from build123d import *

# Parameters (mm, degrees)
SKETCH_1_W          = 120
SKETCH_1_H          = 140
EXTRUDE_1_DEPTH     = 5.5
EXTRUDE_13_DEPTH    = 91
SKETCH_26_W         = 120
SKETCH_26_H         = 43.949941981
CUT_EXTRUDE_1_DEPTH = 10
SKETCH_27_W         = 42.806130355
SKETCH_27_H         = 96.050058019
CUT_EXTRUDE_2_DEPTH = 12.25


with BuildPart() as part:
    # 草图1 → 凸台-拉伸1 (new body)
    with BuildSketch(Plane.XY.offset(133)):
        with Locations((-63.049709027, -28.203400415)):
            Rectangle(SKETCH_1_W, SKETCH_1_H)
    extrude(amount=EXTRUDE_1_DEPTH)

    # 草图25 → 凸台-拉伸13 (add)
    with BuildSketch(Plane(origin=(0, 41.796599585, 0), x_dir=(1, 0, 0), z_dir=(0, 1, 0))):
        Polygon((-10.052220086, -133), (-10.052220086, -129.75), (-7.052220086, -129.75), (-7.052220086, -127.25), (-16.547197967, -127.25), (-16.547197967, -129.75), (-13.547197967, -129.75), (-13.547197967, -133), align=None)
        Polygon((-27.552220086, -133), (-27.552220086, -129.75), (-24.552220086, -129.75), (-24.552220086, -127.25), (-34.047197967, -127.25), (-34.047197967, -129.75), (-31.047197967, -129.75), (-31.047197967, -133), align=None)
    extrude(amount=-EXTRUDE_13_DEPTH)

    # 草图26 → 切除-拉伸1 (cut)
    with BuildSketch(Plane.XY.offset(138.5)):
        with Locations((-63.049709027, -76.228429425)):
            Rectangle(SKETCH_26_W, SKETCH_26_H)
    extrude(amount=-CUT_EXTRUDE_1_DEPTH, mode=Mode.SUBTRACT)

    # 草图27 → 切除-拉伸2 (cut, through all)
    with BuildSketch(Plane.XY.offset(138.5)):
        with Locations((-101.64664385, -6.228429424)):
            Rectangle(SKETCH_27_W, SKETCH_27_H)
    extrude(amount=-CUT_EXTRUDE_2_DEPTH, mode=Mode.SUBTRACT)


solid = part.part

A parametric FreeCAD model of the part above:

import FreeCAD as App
import Part
import Sketcher
from FreeCAD import Vector
Q = App.Units.Quantity


def add_polygon(sketch, points):
    """Adds a closed chain of lines whose ends are joined by coincident constraints."""
    first, n = sketch.GeometryCount, len(points)
    for a, b in zip(points, points[1:] + points[:1]):
        sketch.addGeometry(Part.LineSegment(App.Vector(*a, 0), App.Vector(*b, 0)), False)
    for i in range(n):
        sketch.addConstraint(Sketcher.Constraint("Coincident", first + i, 2, first + (i + 1) % n, 1))

doc = App.newDocument("Part")
body = doc.addObject("PartDesign::Body", "Body")

# Sketch on XY plane
sketch1 = body.newObject("Sketcher::SketchObject", "Sketch")
sketch1.AttachmentSupport = (doc.getObject("XY_Plane"), [""])
sketch1.MapMode = "FlatFace"
sketch1.AttachmentOffset = App.Placement(Vector(0, 0, 133), App.Rotation())
add_polygon(sketch1, [(-123, 42), (-123, -98), (-3, -98), (-3, 42)])  # lines 0-3
sketch1.addConstraint([
    Sketcher.Constraint("Vertical", 0),
    Sketcher.Constraint("Horizontal", 1),
    Sketcher.Constraint("Vertical", 2),
    Sketcher.Constraint("Horizontal", 3),
    Sketcher.Constraint("DistanceX", 1, 1, 1, 2, Q("120 mm")),
    Sketcher.Constraint("DistanceY", 0, 2, 0, 1, Q("140 mm")),
    Sketcher.Constraint("DistanceY", 0, 2, -1, 1, Q("98.2034 mm")),
    Sketcher.Constraint("DistanceX", 0, 2, -1, 1, Q("123.049709 mm")),
])
pad1 = body.newObject("PartDesign::Pad", "Pad")
pad1.Profile = sketch1
pad1.Length = 5.5

# Sketch on XZ plane
sketch2 = body.newObject("Sketcher::SketchObject", "Sketch001")
sketch2.AttachmentSupport = (doc.getObject("XZ_Plane"), [""])
sketch2.MapMode = "FlatFace"
sketch2.AttachmentOffset = App.Placement(Vector(0, 0, -41.7966), App.Rotation())
add_polygon(sketch2, [(-10.1, 133), (-10.1, 129.8), (-7.1, 129.8), (-7.1, 127.2), (-16.5, 127.2), (-16.5, 129.8), (-13.5, 129.8), (-13.5, 133)])  # lines 0-7
add_polygon(sketch2, [(-27.6, 133), (-27.6, 129.8), (-24.6, 129.8), (-24.6, 127.2), (-34, 127.2), (-34, 129.8), (-31, 129.8), (-31, 133)])  # lines 8-15
sketch2.addConstraint([
    Sketcher.Constraint("Vertical", 0),
    Sketcher.Constraint("Horizontal", 1),
    Sketcher.Constraint("Vertical", 2),
    Sketcher.Constraint("Horizontal", 3),
    Sketcher.Constraint("Vertical", 4),
    Sketcher.Constraint("Horizontal", 5),
    Sketcher.Constraint("Vertical", 6),
    Sketcher.Constraint("Horizontal", 7),
    Sketcher.Constraint("Vertical", 8),
    Sketcher.Constraint("Horizontal", 9),
    Sketcher.Constraint("Vertical", 10),
    Sketcher.Constraint("Horizontal", 11),
    Sketcher.Constraint("Vertical", 12),
    Sketcher.Constraint("Horizontal", 13),
    Sketcher.Constraint("Vertical", 14),
    Sketcher.Constraint("Horizontal", 15),
    Sketcher.Constraint("Horizontal", 1, 2, 4, 2),
    Sketcher.Constraint("Horizontal", 5, 2, 8, 2),
    Sketcher.Constraint("Horizontal", 3, 2, 10, 2),
    Sketcher.Constraint("Horizontal", 9, 2, 12, 2),
    Sketcher.Constraint("Horizontal", 7, 2, 14, 2),
    Sketcher.Constraint("Equal", 1, 5),
    Sketcher.Constraint("Equal", 5, 9),
    Sketcher.Constraint("Equal", 3, 11),
    Sketcher.Constraint("Equal", 9, 13),
    Sketcher.Constraint("DistanceX", 1, 1, 1, 2, Q("3 mm")),
    Sketcher.Constraint("DistanceY", 2, 2, 2, 1, Q("2.5 mm")),
    Sketcher.Constraint("DistanceY", -1, 1, 6, 2, Q("133 mm")),
    Sketcher.Constraint("DistanceY", 0, 2, 0, 1, Q("3.25 mm")),
    Sketcher.Constraint("DistanceX", 8, 2, 0, 2, Q("17.5 mm")),
    Sketcher.Constraint("DistanceX", 3, 2, 3, 1, Q("9.494978 mm")),
    Sketcher.Constraint("DistanceX", 0, 2, -1, 1, Q("10.05222 mm")),
])
pad2 = body.newObject("PartDesign::Pad", "Pad001")
pad2.Profile = sketch2
pad2.Length = 91

# Sketch on XY plane
sketch3 = body.newObject("Sketcher::SketchObject", "Sketch002")
sketch3.AttachmentSupport = (doc.getObject("XY_Plane"), [""])
sketch3.MapMode = "FlatFace"
sketch3.AttachmentOffset = App.Placement(Vector(0, 0, 138.5), App.Rotation())
add_polygon(sketch3, [(-123, -54), (-123, -98), (-3, -98), (-3, -54)])  # lines 0-3
sketch3.addConstraint([
    Sketcher.Constraint("Vertical", 0),
    Sketcher.Constraint("Horizontal", 1),
    Sketcher.Constraint("Vertical", 2),
    Sketcher.Constraint("Horizontal", 3),
    Sketcher.Constraint("DistanceX", 1, 1, 1, 2, Q("120 mm")),
    Sketcher.Constraint("DistanceY", 0, 2, 0, 1, Q("43.949942 mm")),
    Sketcher.Constraint("DistanceY", 0, 2, -1, 1, Q("98.2034 mm")),
    Sketcher.Constraint("DistanceX", 0, 2, -1, 1, Q("123.049709 mm")),
])
pocket1 = body.newObject("PartDesign::Pocket", "Pocket")
pocket1.Profile = sketch3
pocket1.Length = 10

# Sketch on XY plane
sketch4 = body.newObject("Sketcher::SketchObject", "Sketch003")
sketch4.AttachmentSupport = (doc.getObject("XY_Plane"), [""])
sketch4.MapMode = "FlatFace"
sketch4.AttachmentOffset = App.Placement(Vector(0, 0, 138.5), App.Rotation())
add_polygon(sketch4, [(-123, 42), (-123, -54), (-80, -54), (-80, 42)])  # lines 0-3
sketch4.addConstraint([
    Sketcher.Constraint("Vertical", 0),
    Sketcher.Constraint("Horizontal", 1),
    Sketcher.Constraint("Vertical", 2),
    Sketcher.Constraint("Horizontal", 3),
    Sketcher.Constraint("DistanceX", 1, 1, 1, 2, Q("42.80613 mm")),
    Sketcher.Constraint("DistanceY", 0, 2, 0, 1, Q("96.050058 mm")),
    Sketcher.Constraint("DistanceY", -1, 1, 2, 2, Q("41.7966 mm")),
    Sketcher.Constraint("DistanceX", 0, 2, -1, 1, Q("123.049709 mm")),
])
pocket2 = body.newObject("PartDesign::Pocket", "Pocket001")
pocket2.Profile = sketch4
pocket2.Type = "ThroughAll"

doc.recompute()
